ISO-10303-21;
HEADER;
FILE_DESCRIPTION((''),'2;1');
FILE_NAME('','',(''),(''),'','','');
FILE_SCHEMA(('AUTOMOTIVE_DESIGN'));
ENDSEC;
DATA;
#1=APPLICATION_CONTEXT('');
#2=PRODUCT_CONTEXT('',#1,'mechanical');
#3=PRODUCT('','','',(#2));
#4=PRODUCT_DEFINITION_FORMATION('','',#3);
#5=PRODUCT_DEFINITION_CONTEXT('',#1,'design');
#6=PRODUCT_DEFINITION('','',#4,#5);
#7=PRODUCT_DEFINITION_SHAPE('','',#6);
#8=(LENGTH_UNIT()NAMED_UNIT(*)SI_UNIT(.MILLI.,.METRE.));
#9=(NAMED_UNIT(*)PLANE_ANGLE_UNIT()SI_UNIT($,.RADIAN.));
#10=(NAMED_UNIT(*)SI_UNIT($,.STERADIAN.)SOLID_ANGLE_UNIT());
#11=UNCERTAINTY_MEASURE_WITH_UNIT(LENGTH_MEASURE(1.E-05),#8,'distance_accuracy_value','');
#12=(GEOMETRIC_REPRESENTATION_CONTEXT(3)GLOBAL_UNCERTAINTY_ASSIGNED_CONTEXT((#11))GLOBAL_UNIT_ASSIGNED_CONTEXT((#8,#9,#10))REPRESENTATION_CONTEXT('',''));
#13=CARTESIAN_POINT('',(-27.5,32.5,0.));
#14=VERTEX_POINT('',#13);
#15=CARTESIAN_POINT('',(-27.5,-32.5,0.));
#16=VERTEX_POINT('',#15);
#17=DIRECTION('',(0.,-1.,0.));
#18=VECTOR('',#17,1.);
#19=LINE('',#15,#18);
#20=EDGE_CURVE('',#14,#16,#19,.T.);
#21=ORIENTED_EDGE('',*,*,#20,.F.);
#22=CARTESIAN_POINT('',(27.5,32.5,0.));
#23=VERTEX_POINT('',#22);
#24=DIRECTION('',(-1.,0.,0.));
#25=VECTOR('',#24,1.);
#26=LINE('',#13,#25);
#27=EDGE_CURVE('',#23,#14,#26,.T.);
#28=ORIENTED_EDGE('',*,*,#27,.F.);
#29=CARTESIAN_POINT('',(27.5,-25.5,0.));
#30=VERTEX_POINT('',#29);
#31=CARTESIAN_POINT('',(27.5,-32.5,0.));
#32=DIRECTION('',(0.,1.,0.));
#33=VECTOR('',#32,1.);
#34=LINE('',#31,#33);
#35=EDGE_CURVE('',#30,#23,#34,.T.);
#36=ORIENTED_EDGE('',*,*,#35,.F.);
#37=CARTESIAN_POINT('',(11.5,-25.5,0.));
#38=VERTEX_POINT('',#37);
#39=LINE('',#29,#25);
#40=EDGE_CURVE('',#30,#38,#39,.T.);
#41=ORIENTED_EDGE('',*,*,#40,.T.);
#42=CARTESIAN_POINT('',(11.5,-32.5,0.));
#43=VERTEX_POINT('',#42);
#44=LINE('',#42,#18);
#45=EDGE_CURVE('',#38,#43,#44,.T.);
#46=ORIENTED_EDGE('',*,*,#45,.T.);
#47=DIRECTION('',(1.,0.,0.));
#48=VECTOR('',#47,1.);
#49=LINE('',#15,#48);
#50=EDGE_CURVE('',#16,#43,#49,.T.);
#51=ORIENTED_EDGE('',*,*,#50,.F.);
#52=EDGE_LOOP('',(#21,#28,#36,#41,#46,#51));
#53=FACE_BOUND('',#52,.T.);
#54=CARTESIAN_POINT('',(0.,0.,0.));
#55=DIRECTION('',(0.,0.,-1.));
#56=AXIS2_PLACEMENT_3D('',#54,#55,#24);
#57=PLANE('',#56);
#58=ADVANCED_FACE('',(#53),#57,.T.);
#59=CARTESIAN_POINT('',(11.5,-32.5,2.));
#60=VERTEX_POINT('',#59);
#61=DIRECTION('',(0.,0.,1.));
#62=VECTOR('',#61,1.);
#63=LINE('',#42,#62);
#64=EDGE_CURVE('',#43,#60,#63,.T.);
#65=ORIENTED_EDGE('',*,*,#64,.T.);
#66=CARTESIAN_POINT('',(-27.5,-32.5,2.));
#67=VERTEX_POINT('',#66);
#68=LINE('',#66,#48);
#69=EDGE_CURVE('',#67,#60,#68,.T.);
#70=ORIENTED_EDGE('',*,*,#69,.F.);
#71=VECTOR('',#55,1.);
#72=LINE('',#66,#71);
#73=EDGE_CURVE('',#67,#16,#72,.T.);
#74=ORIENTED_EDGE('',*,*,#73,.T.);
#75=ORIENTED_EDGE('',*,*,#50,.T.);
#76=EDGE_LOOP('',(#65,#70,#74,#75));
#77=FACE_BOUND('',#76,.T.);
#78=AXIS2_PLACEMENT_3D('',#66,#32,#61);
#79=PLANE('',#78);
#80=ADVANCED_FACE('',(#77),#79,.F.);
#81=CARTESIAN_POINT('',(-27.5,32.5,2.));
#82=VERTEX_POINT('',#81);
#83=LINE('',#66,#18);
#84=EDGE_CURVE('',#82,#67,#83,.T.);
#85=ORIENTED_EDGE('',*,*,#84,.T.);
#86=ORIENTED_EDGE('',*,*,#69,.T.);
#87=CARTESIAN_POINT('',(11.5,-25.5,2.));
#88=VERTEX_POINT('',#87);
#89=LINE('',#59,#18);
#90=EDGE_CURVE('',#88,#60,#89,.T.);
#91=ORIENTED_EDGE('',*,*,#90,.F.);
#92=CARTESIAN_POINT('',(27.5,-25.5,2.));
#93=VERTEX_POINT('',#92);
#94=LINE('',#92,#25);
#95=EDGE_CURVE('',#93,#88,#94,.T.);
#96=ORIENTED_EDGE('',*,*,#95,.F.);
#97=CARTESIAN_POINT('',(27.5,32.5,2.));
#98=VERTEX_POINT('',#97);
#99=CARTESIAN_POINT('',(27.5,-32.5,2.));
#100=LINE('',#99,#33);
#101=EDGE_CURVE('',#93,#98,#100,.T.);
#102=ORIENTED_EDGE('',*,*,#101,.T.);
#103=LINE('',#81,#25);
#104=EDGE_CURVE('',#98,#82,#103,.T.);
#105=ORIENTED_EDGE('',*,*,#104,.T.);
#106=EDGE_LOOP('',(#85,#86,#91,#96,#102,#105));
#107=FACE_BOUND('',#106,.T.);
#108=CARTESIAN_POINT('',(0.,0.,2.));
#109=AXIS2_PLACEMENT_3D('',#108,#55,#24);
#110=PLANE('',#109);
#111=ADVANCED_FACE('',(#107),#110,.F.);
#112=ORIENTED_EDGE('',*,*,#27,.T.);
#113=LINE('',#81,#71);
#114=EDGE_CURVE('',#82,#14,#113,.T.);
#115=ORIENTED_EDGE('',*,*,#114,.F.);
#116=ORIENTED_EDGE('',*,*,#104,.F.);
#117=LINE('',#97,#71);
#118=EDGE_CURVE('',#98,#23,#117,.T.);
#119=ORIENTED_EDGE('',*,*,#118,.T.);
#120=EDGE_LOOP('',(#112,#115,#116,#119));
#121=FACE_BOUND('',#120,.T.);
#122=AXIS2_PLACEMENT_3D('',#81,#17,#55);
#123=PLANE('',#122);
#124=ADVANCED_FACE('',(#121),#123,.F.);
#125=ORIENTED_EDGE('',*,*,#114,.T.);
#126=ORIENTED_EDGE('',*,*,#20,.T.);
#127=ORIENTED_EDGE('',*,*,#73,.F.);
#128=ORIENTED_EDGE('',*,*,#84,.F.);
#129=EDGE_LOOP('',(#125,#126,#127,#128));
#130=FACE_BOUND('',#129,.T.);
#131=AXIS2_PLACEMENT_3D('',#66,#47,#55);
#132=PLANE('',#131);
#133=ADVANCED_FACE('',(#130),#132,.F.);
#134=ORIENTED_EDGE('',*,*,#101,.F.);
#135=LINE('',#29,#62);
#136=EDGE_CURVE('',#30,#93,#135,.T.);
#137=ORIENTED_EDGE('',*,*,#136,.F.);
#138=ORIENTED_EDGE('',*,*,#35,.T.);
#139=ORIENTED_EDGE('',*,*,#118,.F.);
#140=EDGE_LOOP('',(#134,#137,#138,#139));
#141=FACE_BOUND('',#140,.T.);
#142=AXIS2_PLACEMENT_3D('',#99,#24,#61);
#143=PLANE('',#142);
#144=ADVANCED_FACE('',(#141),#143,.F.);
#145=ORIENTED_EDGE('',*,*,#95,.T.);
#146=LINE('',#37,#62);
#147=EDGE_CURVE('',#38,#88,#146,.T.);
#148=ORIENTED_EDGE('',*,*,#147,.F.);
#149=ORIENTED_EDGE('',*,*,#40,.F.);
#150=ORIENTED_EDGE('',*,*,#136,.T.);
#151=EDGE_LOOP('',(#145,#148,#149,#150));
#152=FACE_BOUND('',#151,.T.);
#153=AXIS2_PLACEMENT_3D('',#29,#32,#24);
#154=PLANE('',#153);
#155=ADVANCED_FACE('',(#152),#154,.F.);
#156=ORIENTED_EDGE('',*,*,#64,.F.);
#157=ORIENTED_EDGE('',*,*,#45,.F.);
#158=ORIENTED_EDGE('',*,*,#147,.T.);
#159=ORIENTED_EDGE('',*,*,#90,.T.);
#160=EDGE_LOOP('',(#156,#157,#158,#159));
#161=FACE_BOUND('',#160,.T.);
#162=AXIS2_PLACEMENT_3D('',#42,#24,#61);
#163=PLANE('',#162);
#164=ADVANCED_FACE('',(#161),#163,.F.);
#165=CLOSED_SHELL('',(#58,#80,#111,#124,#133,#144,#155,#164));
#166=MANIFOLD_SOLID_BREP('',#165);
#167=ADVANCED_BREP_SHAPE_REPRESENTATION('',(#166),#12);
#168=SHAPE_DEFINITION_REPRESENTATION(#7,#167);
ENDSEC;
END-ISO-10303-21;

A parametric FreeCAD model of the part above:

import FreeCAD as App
import Part
import Sketcher

doc = App.newDocument("Part")
params = doc.addObject("Spreadsheet::Sheet", "Params")
for row, (alias, value) in enumerate([
    ("sketch1_width", "55 mm"),
    ("sketch1_height", "65 mm"),
    ("pad1_length", "2 mm"),
    ("sketch2_width", "16 mm"),
    ("sketch2_height", "7 mm"),
    ("pocket1_length", "2 mm"),
], start=1):
    params.set(f"A{row}", alias)
    params.set(f"B{row}", "=" + value)
    params.setAlias(f"B{row}", alias)

body = doc.addObject("PartDesign::Body", "Body")

sketch1 = body.newObject("Sketcher::SketchObject", "Sketch")
sketch1.AttachmentSupport = (doc.getObject("XY_Plane"), [""])
sketch1.MapMode = "FlatFace"
sketch1.addGeometry([
    Part.LineSegment(App.Vector(-28, 32, 0), App.Vector(-28, -32, 0)),
    Part.LineSegment(App.Vector(-28, -32, 0), App.Vector(28, -32, 0)),
    Part.LineSegment(App.Vector(28, -32, 0), App.Vector(28, 32, 0)),
    Part.LineSegment(App.Vector(28, 32, 0), App.Vector(-28, 32, 0)),
], False)
sketch1.addConstraint([
    Sketcher.Constraint("Coincident", 0, 2, 1, 1),
    Sketcher.Constraint("Coincident", 1, 2, 2, 1),
    Sketcher.Constraint("Coincident", 2, 2, 3, 1),
    Sketcher.Constraint("Coincident", 3, 2, 0, 1),
    Sketcher.Constraint("Vertical", 0),
    Sketcher.Constraint("Horizontal", 1),
    Sketcher.Constraint("Vertical", 2),
    Sketcher.Constraint("Horizontal", 3),
    Sketcher.Constraint("Symmetric", 0, 2, 2, 2, -1, 1),
    Sketcher.Constraint("DistanceX", 1, 1, 1, 2, 55.0),
    Sketcher.Constraint("DistanceY", 0, 2, 0, 1, 65.0),
])
sketch1.setExpression("Constraints[9]", "Params.sketch1_width")
sketch1.setExpression("Constraints[10]", "Params.sketch1_height")
pad1 = body.newObject("PartDesign::Pad", "Pad")
pad1.Profile = sketch1
pad1.setExpression("Length", "Params.pad1_length")

sketch2 = body.newObject("Sketcher::SketchObject", "Sketch001")
sketch2.AttachmentSupport = (doc.getObject("XY_Plane"), [""])
sketch2.MapMode = "FlatFace"
sketch2.AttachmentOffset = App.Placement(App.Vector(0, 0, 2), App.Rotation())
sketch2.addGeometry([
    Part.LineSegment(App.Vector(12, -26, 0), App.Vector(12, -32, 0)),
    Part.LineSegment(App.Vector(12, -32, 0), App.Vector(28, -32, 0)),
    Part.LineSegment(App.Vector(28, -32, 0), App.Vector(28, -26, 0)),
    Part.LineSegment(App.Vector(28, -26, 0), App.Vector(12, -26, 0)),
], False)
sketch2.addConstraint([
    Sketcher.Constraint("Coincident", 0, 2, 1, 1),
    Sketcher.Constraint("Coincident", 1, 2, 2, 1),
    Sketcher.Constraint("Coincident", 2, 2, 3, 1),
    Sketcher.Constraint("Coincident", 3, 2, 0, 1),
    Sketcher.Constraint("Vertical", 0),
    Sketcher.Constraint("Horizontal", 1),
    Sketcher.Constraint("Vertical", 2),
    Sketcher.Constraint("Horizontal", 3),
    Sketcher.Constraint("DistanceX", 1, 1, 1, 2, 16.0),
    Sketcher.Constraint("DistanceY", 0, 2, 0, 1, 7.0),
    Sketcher.Constraint("DistanceX", -1, 1, 0, 2, 11.5),
    Sketcher.Constraint("DistanceY", 0, 2, -1, 1, 32.5),
])
sketch2.setExpression("Constraints[8]", "Params.sketch2_width")
sketch2.setExpression("Constraints[9]", "Params.sketch2_height")
pocket1 = body.newObject("PartDesign::Pocket", "Pocket")
pocket1.Profile = sketch2
pocket1.setExpression("Length", "Params.pocket1_length")

doc.recompute()
